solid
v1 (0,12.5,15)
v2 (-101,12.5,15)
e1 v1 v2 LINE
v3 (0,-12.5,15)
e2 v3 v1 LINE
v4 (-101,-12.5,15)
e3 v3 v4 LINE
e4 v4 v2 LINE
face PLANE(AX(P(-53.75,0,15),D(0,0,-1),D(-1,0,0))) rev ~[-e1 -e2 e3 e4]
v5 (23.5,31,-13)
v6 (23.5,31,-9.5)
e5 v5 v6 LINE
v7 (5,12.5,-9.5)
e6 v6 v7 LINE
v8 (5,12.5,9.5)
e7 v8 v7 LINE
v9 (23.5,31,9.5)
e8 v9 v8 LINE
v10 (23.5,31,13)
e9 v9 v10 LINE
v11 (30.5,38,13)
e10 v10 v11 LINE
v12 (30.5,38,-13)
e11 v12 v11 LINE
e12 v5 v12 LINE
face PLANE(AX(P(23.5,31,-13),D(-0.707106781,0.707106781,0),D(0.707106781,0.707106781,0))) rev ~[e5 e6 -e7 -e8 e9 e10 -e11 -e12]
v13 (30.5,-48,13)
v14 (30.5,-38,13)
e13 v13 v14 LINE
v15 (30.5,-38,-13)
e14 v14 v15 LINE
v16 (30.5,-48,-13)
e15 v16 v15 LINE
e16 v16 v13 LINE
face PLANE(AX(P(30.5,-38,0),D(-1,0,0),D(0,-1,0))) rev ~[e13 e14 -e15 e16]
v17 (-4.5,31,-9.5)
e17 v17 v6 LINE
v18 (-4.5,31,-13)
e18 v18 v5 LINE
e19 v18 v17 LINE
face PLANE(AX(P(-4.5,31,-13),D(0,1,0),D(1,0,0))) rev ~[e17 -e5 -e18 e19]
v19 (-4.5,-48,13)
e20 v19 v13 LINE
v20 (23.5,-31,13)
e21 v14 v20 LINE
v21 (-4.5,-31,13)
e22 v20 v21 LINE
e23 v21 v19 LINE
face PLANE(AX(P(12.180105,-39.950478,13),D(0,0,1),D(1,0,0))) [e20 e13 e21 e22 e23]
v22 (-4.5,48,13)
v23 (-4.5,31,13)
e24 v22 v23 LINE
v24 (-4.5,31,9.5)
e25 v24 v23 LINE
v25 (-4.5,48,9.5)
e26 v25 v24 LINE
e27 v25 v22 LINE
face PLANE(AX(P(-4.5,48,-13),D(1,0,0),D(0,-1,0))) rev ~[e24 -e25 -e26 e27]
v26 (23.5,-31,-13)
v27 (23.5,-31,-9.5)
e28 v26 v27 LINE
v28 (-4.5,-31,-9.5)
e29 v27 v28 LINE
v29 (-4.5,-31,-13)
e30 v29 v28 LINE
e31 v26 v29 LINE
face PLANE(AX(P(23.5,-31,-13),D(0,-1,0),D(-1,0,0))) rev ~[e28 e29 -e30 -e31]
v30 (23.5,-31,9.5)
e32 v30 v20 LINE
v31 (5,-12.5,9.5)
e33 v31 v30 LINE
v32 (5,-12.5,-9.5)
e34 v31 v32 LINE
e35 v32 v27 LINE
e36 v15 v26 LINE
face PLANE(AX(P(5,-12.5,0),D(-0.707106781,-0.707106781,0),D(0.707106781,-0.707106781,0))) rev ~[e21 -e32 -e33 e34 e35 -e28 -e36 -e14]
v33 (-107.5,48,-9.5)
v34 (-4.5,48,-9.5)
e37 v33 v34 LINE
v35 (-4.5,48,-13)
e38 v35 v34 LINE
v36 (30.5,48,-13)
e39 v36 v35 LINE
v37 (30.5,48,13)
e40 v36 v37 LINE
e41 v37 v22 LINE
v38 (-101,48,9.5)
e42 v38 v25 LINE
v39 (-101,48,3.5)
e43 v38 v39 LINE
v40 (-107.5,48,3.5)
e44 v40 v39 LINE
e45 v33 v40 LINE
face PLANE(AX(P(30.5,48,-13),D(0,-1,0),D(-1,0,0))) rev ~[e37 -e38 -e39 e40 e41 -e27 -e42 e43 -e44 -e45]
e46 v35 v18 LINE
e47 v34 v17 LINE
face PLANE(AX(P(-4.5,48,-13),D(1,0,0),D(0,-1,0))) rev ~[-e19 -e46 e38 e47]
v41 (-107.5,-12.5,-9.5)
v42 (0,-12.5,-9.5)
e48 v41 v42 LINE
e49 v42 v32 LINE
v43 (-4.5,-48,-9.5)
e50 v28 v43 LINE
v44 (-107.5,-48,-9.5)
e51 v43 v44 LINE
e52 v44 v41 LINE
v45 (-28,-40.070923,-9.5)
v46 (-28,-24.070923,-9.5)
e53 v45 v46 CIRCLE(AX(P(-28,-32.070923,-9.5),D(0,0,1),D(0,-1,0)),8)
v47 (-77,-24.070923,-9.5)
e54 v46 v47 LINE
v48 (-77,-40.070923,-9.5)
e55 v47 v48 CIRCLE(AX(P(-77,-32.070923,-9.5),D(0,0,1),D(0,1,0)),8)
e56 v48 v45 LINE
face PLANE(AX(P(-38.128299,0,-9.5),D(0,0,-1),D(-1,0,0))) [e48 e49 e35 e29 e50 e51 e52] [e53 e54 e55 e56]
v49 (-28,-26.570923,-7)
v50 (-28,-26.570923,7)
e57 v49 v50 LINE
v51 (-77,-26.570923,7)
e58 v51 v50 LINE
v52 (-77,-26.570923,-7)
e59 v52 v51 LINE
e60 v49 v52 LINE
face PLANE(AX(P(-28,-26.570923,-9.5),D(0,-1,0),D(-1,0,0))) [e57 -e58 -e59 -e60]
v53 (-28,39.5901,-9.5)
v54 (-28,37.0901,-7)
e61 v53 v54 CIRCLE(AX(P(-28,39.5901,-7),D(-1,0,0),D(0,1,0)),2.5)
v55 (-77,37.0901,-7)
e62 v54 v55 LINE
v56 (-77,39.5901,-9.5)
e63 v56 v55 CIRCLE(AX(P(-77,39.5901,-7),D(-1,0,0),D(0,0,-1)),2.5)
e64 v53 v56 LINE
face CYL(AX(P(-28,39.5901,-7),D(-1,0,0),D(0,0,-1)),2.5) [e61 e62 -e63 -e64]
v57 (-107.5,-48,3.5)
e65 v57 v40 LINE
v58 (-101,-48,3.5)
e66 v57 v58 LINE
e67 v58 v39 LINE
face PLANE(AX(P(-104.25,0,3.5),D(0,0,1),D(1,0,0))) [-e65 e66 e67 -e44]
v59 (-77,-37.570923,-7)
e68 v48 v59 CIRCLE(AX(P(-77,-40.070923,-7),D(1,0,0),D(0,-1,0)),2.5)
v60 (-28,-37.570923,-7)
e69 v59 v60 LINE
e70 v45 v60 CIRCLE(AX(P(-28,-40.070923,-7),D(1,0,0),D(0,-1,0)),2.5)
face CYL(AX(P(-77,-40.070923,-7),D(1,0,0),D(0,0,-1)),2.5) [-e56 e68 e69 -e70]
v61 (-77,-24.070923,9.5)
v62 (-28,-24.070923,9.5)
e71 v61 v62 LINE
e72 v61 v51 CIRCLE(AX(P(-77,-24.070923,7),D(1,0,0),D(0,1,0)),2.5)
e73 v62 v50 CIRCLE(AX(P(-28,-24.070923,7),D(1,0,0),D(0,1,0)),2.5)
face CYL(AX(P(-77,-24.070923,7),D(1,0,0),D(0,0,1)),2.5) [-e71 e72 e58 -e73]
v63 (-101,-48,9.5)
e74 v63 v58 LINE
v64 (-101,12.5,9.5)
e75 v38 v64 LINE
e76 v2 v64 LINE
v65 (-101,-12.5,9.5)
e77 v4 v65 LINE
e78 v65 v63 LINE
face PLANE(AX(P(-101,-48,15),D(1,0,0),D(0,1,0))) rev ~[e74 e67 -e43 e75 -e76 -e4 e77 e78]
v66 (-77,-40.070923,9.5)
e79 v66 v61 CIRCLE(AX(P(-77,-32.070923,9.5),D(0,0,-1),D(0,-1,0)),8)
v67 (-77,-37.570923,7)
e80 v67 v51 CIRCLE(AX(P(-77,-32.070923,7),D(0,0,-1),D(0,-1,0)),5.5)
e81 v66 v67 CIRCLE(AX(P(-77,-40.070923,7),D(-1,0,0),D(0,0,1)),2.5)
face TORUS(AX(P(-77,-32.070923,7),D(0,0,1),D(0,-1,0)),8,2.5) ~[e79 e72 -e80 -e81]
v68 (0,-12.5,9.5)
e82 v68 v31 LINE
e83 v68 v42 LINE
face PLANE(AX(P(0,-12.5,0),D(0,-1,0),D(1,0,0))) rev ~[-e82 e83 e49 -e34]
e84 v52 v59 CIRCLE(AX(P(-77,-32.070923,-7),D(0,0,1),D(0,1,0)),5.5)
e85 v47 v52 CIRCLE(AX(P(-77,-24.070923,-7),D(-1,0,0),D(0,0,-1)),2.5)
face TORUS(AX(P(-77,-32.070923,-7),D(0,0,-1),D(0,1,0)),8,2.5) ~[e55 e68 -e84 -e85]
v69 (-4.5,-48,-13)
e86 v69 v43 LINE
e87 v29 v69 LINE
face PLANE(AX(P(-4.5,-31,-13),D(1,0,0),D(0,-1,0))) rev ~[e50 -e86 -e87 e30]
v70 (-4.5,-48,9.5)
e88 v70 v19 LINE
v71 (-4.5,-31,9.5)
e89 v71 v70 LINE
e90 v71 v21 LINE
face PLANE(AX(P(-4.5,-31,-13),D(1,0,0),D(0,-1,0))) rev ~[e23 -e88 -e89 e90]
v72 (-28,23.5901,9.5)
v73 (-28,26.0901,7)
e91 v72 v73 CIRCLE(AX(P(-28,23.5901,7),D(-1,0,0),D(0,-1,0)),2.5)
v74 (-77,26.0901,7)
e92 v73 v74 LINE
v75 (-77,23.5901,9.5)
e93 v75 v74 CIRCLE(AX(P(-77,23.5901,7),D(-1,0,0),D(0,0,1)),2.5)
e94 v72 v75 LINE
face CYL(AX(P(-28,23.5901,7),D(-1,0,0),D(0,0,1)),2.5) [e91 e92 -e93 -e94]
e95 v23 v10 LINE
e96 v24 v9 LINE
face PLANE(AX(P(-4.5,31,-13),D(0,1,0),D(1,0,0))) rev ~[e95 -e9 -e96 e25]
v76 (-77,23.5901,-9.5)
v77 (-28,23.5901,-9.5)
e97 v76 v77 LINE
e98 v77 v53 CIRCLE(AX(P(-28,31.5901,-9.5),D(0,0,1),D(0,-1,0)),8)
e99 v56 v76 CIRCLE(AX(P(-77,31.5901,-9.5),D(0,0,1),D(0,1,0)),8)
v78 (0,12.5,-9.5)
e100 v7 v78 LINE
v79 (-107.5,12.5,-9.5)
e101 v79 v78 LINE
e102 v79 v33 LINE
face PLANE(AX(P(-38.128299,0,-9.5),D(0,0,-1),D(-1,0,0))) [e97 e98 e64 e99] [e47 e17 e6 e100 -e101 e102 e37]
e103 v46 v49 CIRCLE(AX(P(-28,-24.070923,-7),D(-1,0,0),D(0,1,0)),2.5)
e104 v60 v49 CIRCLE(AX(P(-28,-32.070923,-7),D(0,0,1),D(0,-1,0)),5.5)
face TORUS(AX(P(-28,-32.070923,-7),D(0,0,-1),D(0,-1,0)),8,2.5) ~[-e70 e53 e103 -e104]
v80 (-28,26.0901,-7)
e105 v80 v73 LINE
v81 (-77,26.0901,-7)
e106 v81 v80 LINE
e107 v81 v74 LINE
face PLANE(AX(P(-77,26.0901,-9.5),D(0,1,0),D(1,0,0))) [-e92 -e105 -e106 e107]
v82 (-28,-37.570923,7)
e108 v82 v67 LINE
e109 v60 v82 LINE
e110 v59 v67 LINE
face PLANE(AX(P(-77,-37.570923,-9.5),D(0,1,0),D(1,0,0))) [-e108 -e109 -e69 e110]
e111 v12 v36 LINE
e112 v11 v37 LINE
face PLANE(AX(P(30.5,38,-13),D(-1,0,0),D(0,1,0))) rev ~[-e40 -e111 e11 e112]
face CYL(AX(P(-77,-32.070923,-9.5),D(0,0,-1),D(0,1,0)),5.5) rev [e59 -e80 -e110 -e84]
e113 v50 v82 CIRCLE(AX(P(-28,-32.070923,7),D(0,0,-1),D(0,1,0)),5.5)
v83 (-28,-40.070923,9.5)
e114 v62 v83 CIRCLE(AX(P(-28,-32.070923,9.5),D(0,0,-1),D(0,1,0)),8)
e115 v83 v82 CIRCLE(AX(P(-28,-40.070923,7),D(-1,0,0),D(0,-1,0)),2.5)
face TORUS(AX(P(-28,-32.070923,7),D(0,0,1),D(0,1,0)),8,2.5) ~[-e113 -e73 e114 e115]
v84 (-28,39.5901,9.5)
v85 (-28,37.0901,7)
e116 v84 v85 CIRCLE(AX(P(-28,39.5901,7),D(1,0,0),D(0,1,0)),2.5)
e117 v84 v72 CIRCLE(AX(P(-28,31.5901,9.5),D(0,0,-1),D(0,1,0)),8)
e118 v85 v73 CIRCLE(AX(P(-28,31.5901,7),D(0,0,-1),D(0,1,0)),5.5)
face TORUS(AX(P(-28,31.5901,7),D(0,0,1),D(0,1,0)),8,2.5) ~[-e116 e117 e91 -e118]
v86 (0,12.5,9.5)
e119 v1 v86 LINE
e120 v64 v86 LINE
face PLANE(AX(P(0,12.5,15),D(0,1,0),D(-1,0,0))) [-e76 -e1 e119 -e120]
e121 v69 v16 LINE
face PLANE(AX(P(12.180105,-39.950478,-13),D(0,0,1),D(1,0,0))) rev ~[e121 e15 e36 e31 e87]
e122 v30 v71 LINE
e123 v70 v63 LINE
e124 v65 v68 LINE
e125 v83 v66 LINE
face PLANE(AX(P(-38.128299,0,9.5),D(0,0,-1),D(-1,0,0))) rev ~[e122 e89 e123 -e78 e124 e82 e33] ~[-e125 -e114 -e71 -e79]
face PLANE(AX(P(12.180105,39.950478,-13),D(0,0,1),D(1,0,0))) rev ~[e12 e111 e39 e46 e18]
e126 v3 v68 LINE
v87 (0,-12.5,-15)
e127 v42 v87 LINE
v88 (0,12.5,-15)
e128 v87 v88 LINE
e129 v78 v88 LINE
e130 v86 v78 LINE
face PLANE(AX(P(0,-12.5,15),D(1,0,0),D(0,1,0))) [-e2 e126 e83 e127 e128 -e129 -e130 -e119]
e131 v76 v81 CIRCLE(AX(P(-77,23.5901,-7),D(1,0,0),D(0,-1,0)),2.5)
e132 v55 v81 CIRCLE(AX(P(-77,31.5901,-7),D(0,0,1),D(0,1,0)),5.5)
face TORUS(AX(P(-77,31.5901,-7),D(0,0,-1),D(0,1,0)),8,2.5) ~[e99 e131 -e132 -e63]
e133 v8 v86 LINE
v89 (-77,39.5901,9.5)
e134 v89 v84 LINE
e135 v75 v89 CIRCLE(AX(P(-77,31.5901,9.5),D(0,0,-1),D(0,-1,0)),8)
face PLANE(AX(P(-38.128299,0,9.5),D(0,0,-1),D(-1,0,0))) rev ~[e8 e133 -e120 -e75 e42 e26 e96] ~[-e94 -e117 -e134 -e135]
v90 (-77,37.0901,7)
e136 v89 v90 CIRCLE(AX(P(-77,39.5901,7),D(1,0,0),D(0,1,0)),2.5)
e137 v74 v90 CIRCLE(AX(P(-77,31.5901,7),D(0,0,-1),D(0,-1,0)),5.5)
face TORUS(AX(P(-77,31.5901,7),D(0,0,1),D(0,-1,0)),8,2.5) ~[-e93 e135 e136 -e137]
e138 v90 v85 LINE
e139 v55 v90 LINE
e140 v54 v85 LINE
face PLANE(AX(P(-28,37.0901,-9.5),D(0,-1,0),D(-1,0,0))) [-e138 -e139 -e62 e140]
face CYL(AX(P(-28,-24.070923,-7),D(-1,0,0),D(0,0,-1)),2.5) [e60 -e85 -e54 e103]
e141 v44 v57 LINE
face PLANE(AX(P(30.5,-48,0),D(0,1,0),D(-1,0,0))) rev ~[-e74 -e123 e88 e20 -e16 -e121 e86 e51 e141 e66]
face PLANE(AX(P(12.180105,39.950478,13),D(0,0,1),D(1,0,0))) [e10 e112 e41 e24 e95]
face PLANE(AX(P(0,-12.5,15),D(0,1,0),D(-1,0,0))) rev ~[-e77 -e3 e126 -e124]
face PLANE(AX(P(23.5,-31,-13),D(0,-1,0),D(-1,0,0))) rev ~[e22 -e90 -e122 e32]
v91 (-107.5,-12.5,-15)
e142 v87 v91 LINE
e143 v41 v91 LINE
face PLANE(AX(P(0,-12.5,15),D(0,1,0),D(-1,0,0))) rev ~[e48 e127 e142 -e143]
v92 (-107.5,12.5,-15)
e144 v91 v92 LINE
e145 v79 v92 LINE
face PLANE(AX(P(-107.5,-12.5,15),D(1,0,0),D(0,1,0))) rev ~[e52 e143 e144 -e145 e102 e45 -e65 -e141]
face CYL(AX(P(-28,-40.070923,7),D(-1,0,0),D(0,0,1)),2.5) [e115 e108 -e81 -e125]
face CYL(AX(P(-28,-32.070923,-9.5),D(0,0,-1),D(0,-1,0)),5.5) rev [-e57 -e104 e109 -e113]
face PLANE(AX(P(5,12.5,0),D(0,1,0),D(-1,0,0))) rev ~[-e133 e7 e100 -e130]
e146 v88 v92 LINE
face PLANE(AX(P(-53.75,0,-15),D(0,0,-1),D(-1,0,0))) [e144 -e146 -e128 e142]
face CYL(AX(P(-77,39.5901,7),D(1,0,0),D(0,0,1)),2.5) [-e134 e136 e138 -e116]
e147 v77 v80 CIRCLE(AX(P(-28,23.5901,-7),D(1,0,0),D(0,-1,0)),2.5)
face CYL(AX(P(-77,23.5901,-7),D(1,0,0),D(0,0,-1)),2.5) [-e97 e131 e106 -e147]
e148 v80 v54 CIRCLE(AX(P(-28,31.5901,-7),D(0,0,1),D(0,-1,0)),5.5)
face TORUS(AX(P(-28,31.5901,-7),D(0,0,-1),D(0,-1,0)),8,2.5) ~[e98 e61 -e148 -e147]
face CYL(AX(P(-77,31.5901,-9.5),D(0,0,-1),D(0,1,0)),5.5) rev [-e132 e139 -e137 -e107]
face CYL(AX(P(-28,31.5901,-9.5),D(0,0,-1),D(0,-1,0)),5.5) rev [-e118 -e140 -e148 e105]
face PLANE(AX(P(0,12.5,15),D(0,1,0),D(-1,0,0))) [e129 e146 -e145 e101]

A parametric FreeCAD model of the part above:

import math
import FreeCAD as App
import Part
import Sketcher


def edges_at(feature, points):
    """Names of the edges that pass closest to the given points."""
    edges = feature.Shape.Edges
    near = lambda p: min(range(len(edges)), key=lambda i: edges[i].distToShape(Part.Vertex(*p))[0])
    return sorted({f"Edge{near(p) + 1}" for p in points})

doc = App.newDocument("Part")
body = doc.addObject("PartDesign::Body", "Body")

sketch1 = body.newObject("Sketcher::SketchObject", "Sketch")
sketch1.AttachmentSupport = (doc.getObject("XY_Plane"), [""])
sketch1.MapMode = "FlatFace"
sketch1.addGeometry([
    Part.LineSegment(App.Vector(30, 48, 0), App.Vector(-108, 48, 0)),
    Part.LineSegment(App.Vector(-108, 48, 0), App.Vector(-108, -48, 0)),
    Part.LineSegment(App.Vector(-108, -48, 0), App.Vector(30, -48, 0)),
    Part.LineSegment(App.Vector(30, -48, 0), App.Vector(30, -38, 0)),
    Part.LineSegment(App.Vector(30, -38, 0), App.Vector(5, -12, 0)),
    Part.LineSegment(App.Vector(5, -12, 0), App.Vector(0, -12, 0)),
    Part.LineSegment(App.Vector(0, -12, 0), App.Vector(0, 12, 0)),
    Part.LineSegment(App.Vector(0, 12, 0), App.Vector(5, 12, 0)),
    Part.LineSegment(App.Vector(5, 12, 0), App.Vector(30, 38, 0)),
    Part.LineSegment(App.Vector(30, 38, 0), App.Vector(30, 48, 0)),
], False)
sketch1.addConstraint([
    Sketcher.Constraint("Coincident", 0, 2, 1, 1),
    Sketcher.Constraint("Coincident", 1, 2, 2, 1),
    Sketcher.Constraint("Coincident", 2, 2, 3, 1),
    Sketcher.Constraint("Coincident", 3, 2, 4, 1),
    Sketcher.Constraint("Coincident", 4, 2, 5, 1),
    Sketcher.Constraint("Coincident", 5, 2, 6, 1),
    Sketcher.Constraint("Coincident", 6, 2, 7, 1),
    Sketcher.Constraint("Coincident", 7, 2, 8, 1),
    Sketcher.Constraint("Coincident", 8, 2, 9, 1),
    Sketcher.Constraint("Coincident", 9, 2, 0, 1),
    Sketcher.Constraint("Horizontal", 0),
    Sketcher.Constraint("Vertical", 1),
    Sketcher.Constraint("Horizontal", 2),
    Sketcher.Constraint("Vertical", 3),
    Sketcher.Constraint("Horizontal", 5),
    Sketcher.Constraint("Vertical", 6),
    Sketcher.Constraint("Horizontal", 7),
    Sketcher.Constraint("Vertical", 9),
    Sketcher.Constraint("Symmetric", 5, 2, 6, 2, -1, 1),
    Sketcher.Constraint("Symmetric", 3, 2, 8, 2, -1),
    Sketcher.Constraint("Perpendicular", 4, 8),
    Sketcher.Constraint("Vertical", 4, 2, 7, 2),
    Sketcher.Constraint("Equal", 3, 9),
    Sketcher.Constraint("DistanceX", 0, 2, 0, 1, 138.0),
    Sketcher.Constraint("DistanceX", 5, 2, 5, 1, 5.0),
    Sketcher.Constraint("DistanceY", 1, 2, 1, 1, 96.0),
    Sketcher.Constraint("DistanceY", 3, 1, 3, 2, 10.0),
    Sketcher.Constraint("DistanceY", 6, 1, 6, 2, 25.0),
])
pad1 = body.newObject("PartDesign::Pad", "Pad")
pad1.Profile = sketch1
pad1.Length = 19
pad1.Midplane = True

sketch2 = body.newObject("Sketcher::SketchObject", "Sketch001")
sketch2.AttachmentSupport = (doc.getObject("XY_Plane"), [""])
sketch2.MapMode = "FlatFace"
sketch2.AttachmentOffset = App.Placement(App.Vector(0, 0, 9.5), App.Rotation())
sketch2.addGeometry([
    Part.LineSegment(App.Vector(-4, 31, 0), App.Vector(24, 31, 0)),
    Part.LineSegment(App.Vector(24, 31, 0), App.Vector(30, 38, 0)),
    Part.LineSegment(App.Vector(30, 38, 0), App.Vector(30, 48, 0)),
    Part.LineSegment(App.Vector(30, 48, 0), App.Vector(-4, 48, 0)),
    Part.LineSegment(App.Vector(-4, 48, 0), App.Vector(-4, 31, 0)),
    Part.LineSegment(App.Vector(30, -38, 0), App.Vector(24, -31, 0)),
    Part.LineSegment(App.Vector(24, -31, 0), App.Vector(-4, -31, 0)),
    Part.LineSegment(App.Vector(-4, -31, 0), App.Vector(-4, -48, 0)),
    Part.LineSegment(App.Vector(-4, -48, 0), App.Vector(30, -48, 0)),
    Part.LineSegment(App.Vector(30, -48, 0), App.Vector(30, -38, 0)),
], False)
sketch2.addConstraint([
    Sketcher.Constraint("Coincident", 0, 2, 1, 1),
    Sketcher.Constraint("Coincident", 1, 2, 2, 1),
    Sketcher.Constraint("Coincident", 2, 2, 3, 1),
    Sketcher.Constraint("Coincident", 3, 2, 4, 1),
    Sketcher.Constraint("Coincident", 4, 2, 0, 1),
    Sketcher.Constraint("Coincident", 5, 2, 6, 1),
    Sketcher.Constraint("Coincident", 6, 2, 7, 1),
    Sketcher.Constraint("Coincident", 7, 2, 8, 1),
    Sketcher.Constraint("Coincident", 8, 2, 9, 1),
    Sketcher.Constraint("Coincident", 9, 2, 5, 1),
    Sketcher.Constraint("Horizontal", 0),
    Sketcher.Constraint("Vertical", 2),
    Sketcher.Constraint("Horizontal", 3),
    Sketcher.Constraint("Vertical", 4),
    Sketcher.Constraint("Horizontal", 6),
    Sketcher.Constraint("Vertical", 7),
    Sketcher.Constraint("Horizontal", 8),
    Sketcher.Constraint("Vertical", 9),
    Sketcher.Constraint("Symmetric", 0, 2, 5, 2, -1),
    Sketcher.Constraint("Symmetric", 3, 2, 7, 2, -1),
    Sketcher.Constraint("Symmetric", 1, 2, 9, 2, -1),
    Sketcher.Constraint("Perpendicular", 1, 5),
    Sketcher.Constraint("DistanceX", 0, 1, 0, 2, 28.0),
    Sketcher.Constraint("DistanceX", 3, 2, 3, 1, 35.0),
    Sketcher.Constraint("DistanceY", 2, 1, 2, 2, 10.0),
    Sketcher.Constraint("DistanceY", -1, 1, 0, 2, 31.0),
    Sketcher.Constraint("DistanceX", -1, 1, 0, 2, 23.5),
])
pad2 = body.newObject("PartDesign::Pad", "Pad001")
pad2.Profile = sketch2
pad2.Type = "TwoLengths"
pad2.Length = 3.5
pad2.Length2 = 22.5

sketch3 = body.newObject("Sketcher::SketchObject", "Sketch002")
sketch3.AttachmentSupport = (doc.getObject("XY_Plane"), [""])
sketch3.MapMode = "FlatFace"
sketch3.AttachmentOffset = App.Placement(App.Vector(0, 0, -9.5), App.Rotation())
sketch3.addGeometry([
    Part.LineSegment(App.Vector(0, 12, 0), App.Vector(0, -12, 0)),
    Part.LineSegment(App.Vector(0, -12, 0), App.Vector(-108, -12, 0)),
    Part.LineSegment(App.Vector(-108, -12, 0), App.Vector(-108, 12, 0)),
    Part.LineSegment(App.Vector(-108, 12, 0), App.Vector(0, 12, 0)),
], False)
sketch3.addConstraint([
    Sketcher.Constraint("Coincident", 0, 2, 1, 1),
    Sketcher.Constraint("Coincident", 1, 2, 2, 1),
    Sketcher.Constraint("Coincident", 2, 2, 3, 1),
    Sketcher.Constraint("Coincident", 3, 2, 0, 1),
    Sketcher.Constraint("Vertical", 0),
    Sketcher.Constraint("Horizontal", 1),
    Sketcher.Constraint("Vertical", 2),
    Sketcher.Constraint("Horizontal", 3),
    Sketcher.Constraint("Symmetric", 0, 2, 3, 2, -1, 1),
    Sketcher.Constraint("DistanceY", 0, 2, 0, 1, 25.0),
    Sketcher.Constraint("DistanceX", 1, 2, 1, 1, 107.5),
])
pad3 = body.newObject("PartDesign::Pad", "Pad002")
pad3.Profile = sketch3
pad3.Type = "TwoLengths"
pad3.Length = 5.5
pad3.Length2 = 24.5
pad3.Reversed = True

sketch4 = body.newObject("Sketcher::SketchObject", "Sketch003")
sketch4.AttachmentSupport = (doc.getObject("XY_Plane"), [""])
sketch4.MapMode = "FlatFace"
sketch4.AttachmentOffset = App.Placement(App.Vector(0, 0, 15), App.Rotation())
sketch4.addGeometry([
    Part.LineSegment(App.Vector(-108, 48, 0), App.Vector(-108, -48, 0)),
    Part.LineSegment(App.Vector(-108, -48, 0), App.Vector(-101, -48, 0)),
    Part.LineSegment(App.Vector(-101, -48, 0), App.Vector(-101, 48, 0)),
    Part.LineSegment(App.Vector(-101, 48, 0), App.Vector(-108, 48, 0)),
], False)
sketch4.addConstraint([
    Sketcher.Constraint("Coincident", 0, 2, 1, 1),
    Sketcher.Constraint("Coincident", 1, 2, 2, 1),
    Sketcher.Constraint("Coincident", 2, 2, 3, 1),
    Sketcher.Constraint("Coincident", 3, 2, 0, 1),
    Sketcher.Constraint("Vertical", 0),
    Sketcher.Constraint("Horizontal", 1),
    Sketcher.Constraint("Vertical", 2),
    Sketcher.Constraint("Horizontal", 3),
    Sketcher.Constraint("DistanceY", 0, 2, 0, 1, 96.0),
    Sketcher.Constraint("DistanceX", 1, 1, 1, 2, 6.5),
    Sketcher.Constraint("DistanceY", 0, 2, -1, 1, 48.0),
    Sketcher.Constraint("DistanceX", 1, 2, -1, 1, 101.0),
])
pocket1 = body.newObject("PartDesign::Pocket", "Pocket")
pocket1.Profile = sketch4
pocket1.Length = 11.5

sketch5 = body.newObject("Sketcher::SketchObject", "Sketch004")
sketch5.AttachmentSupport = (doc.getObject("XY_Plane"), [""])
sketch5.MapMode = "FlatFace"
sketch5.AttachmentOffset = App.Placement(App.Vector(0, 0, -9.5), App.Rotation())
sketch5.addGeometry([
    Part.LineSegment(App.Vector(-77, 37, 0), App.Vector(-28, 37, 0)),
    Part.ArcOfCircle(Part.Circle(App.Vector(-28, 32, 0), App.Vector(0, 0, 1), 6), math.radians(-90), math.radians(90)),
    Part.LineSegment(App.Vector(-28, 26, 0), App.Vector(-77, 26, 0)),
    Part.ArcOfCircle(Part.Circle(App.Vector(-77, 32, 0), App.Vector(0, 0, 1), 6), math.radians(90), math.radians(270)),
    Part.LineSegment(App.Vector(-77, -27, 0), App.Vector(-28, -27, 0)),
    Part.ArcOfCircle(Part.Circle(App.Vector(-28, -32, 0), App.Vector(0, 0, 1), 6), math.radians(-90), math.radians(90)),
    Part.LineSegment(App.Vector(-28, -38, 0), App.Vector(-77, -38, 0)),
    Part.ArcOfCircle(Part.Circle(App.Vector(-77, -32, 0), App.Vector(0, 0, 1), 6), math.radians(90), math.radians(270)),
], False)
sketch5.addConstraint([
    Sketcher.Constraint("Tangent", 0, 2, 1, 2),
    Sketcher.Constraint("Tangent", 1, 1, 2, 1),
    Sketcher.Constraint("Tangent", 2, 2, 3, 2),
    Sketcher.Constraint("Tangent", 3, 1, 0, 1),
    Sketcher.Constraint("Tangent", 4, 2, 5, 2),
    Sketcher.Constraint("Tangent", 5, 1, 6, 1),
    Sketcher.Constraint("Tangent", 6, 2, 7, 2),
    Sketcher.Constraint("Tangent", 7, 1, 4, 1),
    Sketcher.Constraint("Horizontal", 0),
    Sketcher.Constraint("Horizontal", 2),
    Sketcher.Constraint("Horizontal", 4),
    Sketcher.Constraint("Horizontal", 6),
    Sketcher.Constraint("Equal", 3, 5),
    Sketcher.Constraint("Vertical", 1, 3, 5, 3),
    Sketcher.Constraint("Vertical", 3, 3, 7, 3),
    Sketcher.Constraint("Radius", 1, 5.5),
    Sketcher.Constraint("DistanceX", 0, 1, 0, 2, 49.0),
    Sketcher.Constraint("DistanceX", 1, 3, -1, 1, 28.0),
    Sketcher.Constraint("DistanceY", -1, 1, 1, 3, 31.5901),
    Sketcher.Constraint("DistanceY", 5, 3, -1, 1, 32.070923),
])
pocket2 = body.newObject("PartDesign::Pocket", "Pocket001")
pocket2.Profile = sketch5
pocket2.Length = 52.5
pocket2.Reversed = True
doc.recompute()

fillet = body.newObject("PartDesign::Fillet", "Fillet")
fillet.Base = (pocket2, edges_at(pocket2, [
    (-22.5, 31.59, 9.5),
    (-52.5, 37.09, 9.5),
    (-82.5, 31.59, 9.5),
    (-52.5, 26.09, 9.5),
    (-22.5, 31.59, -9.5),
    (-52.5, 26.09, -9.5),
    (-82.5, 31.59, -9.5),
    (-52.5, 37.09, -9.5),
    (-22.5, -32.071, 9.5),
    (-52.5, -26.571, 9.5),
    (-82.5, -32.071, 9.5),
    (-52.5, -37.571, 9.5),
    (-22.5, -32.071, -9.5),
    (-52.5, -37.571, -9.5),
    (-82.5, -32.071, -9.5),
    (-52.5, -26.571, -9.5),
]))
fillet.Radius = 2.5

doc.recompute()
